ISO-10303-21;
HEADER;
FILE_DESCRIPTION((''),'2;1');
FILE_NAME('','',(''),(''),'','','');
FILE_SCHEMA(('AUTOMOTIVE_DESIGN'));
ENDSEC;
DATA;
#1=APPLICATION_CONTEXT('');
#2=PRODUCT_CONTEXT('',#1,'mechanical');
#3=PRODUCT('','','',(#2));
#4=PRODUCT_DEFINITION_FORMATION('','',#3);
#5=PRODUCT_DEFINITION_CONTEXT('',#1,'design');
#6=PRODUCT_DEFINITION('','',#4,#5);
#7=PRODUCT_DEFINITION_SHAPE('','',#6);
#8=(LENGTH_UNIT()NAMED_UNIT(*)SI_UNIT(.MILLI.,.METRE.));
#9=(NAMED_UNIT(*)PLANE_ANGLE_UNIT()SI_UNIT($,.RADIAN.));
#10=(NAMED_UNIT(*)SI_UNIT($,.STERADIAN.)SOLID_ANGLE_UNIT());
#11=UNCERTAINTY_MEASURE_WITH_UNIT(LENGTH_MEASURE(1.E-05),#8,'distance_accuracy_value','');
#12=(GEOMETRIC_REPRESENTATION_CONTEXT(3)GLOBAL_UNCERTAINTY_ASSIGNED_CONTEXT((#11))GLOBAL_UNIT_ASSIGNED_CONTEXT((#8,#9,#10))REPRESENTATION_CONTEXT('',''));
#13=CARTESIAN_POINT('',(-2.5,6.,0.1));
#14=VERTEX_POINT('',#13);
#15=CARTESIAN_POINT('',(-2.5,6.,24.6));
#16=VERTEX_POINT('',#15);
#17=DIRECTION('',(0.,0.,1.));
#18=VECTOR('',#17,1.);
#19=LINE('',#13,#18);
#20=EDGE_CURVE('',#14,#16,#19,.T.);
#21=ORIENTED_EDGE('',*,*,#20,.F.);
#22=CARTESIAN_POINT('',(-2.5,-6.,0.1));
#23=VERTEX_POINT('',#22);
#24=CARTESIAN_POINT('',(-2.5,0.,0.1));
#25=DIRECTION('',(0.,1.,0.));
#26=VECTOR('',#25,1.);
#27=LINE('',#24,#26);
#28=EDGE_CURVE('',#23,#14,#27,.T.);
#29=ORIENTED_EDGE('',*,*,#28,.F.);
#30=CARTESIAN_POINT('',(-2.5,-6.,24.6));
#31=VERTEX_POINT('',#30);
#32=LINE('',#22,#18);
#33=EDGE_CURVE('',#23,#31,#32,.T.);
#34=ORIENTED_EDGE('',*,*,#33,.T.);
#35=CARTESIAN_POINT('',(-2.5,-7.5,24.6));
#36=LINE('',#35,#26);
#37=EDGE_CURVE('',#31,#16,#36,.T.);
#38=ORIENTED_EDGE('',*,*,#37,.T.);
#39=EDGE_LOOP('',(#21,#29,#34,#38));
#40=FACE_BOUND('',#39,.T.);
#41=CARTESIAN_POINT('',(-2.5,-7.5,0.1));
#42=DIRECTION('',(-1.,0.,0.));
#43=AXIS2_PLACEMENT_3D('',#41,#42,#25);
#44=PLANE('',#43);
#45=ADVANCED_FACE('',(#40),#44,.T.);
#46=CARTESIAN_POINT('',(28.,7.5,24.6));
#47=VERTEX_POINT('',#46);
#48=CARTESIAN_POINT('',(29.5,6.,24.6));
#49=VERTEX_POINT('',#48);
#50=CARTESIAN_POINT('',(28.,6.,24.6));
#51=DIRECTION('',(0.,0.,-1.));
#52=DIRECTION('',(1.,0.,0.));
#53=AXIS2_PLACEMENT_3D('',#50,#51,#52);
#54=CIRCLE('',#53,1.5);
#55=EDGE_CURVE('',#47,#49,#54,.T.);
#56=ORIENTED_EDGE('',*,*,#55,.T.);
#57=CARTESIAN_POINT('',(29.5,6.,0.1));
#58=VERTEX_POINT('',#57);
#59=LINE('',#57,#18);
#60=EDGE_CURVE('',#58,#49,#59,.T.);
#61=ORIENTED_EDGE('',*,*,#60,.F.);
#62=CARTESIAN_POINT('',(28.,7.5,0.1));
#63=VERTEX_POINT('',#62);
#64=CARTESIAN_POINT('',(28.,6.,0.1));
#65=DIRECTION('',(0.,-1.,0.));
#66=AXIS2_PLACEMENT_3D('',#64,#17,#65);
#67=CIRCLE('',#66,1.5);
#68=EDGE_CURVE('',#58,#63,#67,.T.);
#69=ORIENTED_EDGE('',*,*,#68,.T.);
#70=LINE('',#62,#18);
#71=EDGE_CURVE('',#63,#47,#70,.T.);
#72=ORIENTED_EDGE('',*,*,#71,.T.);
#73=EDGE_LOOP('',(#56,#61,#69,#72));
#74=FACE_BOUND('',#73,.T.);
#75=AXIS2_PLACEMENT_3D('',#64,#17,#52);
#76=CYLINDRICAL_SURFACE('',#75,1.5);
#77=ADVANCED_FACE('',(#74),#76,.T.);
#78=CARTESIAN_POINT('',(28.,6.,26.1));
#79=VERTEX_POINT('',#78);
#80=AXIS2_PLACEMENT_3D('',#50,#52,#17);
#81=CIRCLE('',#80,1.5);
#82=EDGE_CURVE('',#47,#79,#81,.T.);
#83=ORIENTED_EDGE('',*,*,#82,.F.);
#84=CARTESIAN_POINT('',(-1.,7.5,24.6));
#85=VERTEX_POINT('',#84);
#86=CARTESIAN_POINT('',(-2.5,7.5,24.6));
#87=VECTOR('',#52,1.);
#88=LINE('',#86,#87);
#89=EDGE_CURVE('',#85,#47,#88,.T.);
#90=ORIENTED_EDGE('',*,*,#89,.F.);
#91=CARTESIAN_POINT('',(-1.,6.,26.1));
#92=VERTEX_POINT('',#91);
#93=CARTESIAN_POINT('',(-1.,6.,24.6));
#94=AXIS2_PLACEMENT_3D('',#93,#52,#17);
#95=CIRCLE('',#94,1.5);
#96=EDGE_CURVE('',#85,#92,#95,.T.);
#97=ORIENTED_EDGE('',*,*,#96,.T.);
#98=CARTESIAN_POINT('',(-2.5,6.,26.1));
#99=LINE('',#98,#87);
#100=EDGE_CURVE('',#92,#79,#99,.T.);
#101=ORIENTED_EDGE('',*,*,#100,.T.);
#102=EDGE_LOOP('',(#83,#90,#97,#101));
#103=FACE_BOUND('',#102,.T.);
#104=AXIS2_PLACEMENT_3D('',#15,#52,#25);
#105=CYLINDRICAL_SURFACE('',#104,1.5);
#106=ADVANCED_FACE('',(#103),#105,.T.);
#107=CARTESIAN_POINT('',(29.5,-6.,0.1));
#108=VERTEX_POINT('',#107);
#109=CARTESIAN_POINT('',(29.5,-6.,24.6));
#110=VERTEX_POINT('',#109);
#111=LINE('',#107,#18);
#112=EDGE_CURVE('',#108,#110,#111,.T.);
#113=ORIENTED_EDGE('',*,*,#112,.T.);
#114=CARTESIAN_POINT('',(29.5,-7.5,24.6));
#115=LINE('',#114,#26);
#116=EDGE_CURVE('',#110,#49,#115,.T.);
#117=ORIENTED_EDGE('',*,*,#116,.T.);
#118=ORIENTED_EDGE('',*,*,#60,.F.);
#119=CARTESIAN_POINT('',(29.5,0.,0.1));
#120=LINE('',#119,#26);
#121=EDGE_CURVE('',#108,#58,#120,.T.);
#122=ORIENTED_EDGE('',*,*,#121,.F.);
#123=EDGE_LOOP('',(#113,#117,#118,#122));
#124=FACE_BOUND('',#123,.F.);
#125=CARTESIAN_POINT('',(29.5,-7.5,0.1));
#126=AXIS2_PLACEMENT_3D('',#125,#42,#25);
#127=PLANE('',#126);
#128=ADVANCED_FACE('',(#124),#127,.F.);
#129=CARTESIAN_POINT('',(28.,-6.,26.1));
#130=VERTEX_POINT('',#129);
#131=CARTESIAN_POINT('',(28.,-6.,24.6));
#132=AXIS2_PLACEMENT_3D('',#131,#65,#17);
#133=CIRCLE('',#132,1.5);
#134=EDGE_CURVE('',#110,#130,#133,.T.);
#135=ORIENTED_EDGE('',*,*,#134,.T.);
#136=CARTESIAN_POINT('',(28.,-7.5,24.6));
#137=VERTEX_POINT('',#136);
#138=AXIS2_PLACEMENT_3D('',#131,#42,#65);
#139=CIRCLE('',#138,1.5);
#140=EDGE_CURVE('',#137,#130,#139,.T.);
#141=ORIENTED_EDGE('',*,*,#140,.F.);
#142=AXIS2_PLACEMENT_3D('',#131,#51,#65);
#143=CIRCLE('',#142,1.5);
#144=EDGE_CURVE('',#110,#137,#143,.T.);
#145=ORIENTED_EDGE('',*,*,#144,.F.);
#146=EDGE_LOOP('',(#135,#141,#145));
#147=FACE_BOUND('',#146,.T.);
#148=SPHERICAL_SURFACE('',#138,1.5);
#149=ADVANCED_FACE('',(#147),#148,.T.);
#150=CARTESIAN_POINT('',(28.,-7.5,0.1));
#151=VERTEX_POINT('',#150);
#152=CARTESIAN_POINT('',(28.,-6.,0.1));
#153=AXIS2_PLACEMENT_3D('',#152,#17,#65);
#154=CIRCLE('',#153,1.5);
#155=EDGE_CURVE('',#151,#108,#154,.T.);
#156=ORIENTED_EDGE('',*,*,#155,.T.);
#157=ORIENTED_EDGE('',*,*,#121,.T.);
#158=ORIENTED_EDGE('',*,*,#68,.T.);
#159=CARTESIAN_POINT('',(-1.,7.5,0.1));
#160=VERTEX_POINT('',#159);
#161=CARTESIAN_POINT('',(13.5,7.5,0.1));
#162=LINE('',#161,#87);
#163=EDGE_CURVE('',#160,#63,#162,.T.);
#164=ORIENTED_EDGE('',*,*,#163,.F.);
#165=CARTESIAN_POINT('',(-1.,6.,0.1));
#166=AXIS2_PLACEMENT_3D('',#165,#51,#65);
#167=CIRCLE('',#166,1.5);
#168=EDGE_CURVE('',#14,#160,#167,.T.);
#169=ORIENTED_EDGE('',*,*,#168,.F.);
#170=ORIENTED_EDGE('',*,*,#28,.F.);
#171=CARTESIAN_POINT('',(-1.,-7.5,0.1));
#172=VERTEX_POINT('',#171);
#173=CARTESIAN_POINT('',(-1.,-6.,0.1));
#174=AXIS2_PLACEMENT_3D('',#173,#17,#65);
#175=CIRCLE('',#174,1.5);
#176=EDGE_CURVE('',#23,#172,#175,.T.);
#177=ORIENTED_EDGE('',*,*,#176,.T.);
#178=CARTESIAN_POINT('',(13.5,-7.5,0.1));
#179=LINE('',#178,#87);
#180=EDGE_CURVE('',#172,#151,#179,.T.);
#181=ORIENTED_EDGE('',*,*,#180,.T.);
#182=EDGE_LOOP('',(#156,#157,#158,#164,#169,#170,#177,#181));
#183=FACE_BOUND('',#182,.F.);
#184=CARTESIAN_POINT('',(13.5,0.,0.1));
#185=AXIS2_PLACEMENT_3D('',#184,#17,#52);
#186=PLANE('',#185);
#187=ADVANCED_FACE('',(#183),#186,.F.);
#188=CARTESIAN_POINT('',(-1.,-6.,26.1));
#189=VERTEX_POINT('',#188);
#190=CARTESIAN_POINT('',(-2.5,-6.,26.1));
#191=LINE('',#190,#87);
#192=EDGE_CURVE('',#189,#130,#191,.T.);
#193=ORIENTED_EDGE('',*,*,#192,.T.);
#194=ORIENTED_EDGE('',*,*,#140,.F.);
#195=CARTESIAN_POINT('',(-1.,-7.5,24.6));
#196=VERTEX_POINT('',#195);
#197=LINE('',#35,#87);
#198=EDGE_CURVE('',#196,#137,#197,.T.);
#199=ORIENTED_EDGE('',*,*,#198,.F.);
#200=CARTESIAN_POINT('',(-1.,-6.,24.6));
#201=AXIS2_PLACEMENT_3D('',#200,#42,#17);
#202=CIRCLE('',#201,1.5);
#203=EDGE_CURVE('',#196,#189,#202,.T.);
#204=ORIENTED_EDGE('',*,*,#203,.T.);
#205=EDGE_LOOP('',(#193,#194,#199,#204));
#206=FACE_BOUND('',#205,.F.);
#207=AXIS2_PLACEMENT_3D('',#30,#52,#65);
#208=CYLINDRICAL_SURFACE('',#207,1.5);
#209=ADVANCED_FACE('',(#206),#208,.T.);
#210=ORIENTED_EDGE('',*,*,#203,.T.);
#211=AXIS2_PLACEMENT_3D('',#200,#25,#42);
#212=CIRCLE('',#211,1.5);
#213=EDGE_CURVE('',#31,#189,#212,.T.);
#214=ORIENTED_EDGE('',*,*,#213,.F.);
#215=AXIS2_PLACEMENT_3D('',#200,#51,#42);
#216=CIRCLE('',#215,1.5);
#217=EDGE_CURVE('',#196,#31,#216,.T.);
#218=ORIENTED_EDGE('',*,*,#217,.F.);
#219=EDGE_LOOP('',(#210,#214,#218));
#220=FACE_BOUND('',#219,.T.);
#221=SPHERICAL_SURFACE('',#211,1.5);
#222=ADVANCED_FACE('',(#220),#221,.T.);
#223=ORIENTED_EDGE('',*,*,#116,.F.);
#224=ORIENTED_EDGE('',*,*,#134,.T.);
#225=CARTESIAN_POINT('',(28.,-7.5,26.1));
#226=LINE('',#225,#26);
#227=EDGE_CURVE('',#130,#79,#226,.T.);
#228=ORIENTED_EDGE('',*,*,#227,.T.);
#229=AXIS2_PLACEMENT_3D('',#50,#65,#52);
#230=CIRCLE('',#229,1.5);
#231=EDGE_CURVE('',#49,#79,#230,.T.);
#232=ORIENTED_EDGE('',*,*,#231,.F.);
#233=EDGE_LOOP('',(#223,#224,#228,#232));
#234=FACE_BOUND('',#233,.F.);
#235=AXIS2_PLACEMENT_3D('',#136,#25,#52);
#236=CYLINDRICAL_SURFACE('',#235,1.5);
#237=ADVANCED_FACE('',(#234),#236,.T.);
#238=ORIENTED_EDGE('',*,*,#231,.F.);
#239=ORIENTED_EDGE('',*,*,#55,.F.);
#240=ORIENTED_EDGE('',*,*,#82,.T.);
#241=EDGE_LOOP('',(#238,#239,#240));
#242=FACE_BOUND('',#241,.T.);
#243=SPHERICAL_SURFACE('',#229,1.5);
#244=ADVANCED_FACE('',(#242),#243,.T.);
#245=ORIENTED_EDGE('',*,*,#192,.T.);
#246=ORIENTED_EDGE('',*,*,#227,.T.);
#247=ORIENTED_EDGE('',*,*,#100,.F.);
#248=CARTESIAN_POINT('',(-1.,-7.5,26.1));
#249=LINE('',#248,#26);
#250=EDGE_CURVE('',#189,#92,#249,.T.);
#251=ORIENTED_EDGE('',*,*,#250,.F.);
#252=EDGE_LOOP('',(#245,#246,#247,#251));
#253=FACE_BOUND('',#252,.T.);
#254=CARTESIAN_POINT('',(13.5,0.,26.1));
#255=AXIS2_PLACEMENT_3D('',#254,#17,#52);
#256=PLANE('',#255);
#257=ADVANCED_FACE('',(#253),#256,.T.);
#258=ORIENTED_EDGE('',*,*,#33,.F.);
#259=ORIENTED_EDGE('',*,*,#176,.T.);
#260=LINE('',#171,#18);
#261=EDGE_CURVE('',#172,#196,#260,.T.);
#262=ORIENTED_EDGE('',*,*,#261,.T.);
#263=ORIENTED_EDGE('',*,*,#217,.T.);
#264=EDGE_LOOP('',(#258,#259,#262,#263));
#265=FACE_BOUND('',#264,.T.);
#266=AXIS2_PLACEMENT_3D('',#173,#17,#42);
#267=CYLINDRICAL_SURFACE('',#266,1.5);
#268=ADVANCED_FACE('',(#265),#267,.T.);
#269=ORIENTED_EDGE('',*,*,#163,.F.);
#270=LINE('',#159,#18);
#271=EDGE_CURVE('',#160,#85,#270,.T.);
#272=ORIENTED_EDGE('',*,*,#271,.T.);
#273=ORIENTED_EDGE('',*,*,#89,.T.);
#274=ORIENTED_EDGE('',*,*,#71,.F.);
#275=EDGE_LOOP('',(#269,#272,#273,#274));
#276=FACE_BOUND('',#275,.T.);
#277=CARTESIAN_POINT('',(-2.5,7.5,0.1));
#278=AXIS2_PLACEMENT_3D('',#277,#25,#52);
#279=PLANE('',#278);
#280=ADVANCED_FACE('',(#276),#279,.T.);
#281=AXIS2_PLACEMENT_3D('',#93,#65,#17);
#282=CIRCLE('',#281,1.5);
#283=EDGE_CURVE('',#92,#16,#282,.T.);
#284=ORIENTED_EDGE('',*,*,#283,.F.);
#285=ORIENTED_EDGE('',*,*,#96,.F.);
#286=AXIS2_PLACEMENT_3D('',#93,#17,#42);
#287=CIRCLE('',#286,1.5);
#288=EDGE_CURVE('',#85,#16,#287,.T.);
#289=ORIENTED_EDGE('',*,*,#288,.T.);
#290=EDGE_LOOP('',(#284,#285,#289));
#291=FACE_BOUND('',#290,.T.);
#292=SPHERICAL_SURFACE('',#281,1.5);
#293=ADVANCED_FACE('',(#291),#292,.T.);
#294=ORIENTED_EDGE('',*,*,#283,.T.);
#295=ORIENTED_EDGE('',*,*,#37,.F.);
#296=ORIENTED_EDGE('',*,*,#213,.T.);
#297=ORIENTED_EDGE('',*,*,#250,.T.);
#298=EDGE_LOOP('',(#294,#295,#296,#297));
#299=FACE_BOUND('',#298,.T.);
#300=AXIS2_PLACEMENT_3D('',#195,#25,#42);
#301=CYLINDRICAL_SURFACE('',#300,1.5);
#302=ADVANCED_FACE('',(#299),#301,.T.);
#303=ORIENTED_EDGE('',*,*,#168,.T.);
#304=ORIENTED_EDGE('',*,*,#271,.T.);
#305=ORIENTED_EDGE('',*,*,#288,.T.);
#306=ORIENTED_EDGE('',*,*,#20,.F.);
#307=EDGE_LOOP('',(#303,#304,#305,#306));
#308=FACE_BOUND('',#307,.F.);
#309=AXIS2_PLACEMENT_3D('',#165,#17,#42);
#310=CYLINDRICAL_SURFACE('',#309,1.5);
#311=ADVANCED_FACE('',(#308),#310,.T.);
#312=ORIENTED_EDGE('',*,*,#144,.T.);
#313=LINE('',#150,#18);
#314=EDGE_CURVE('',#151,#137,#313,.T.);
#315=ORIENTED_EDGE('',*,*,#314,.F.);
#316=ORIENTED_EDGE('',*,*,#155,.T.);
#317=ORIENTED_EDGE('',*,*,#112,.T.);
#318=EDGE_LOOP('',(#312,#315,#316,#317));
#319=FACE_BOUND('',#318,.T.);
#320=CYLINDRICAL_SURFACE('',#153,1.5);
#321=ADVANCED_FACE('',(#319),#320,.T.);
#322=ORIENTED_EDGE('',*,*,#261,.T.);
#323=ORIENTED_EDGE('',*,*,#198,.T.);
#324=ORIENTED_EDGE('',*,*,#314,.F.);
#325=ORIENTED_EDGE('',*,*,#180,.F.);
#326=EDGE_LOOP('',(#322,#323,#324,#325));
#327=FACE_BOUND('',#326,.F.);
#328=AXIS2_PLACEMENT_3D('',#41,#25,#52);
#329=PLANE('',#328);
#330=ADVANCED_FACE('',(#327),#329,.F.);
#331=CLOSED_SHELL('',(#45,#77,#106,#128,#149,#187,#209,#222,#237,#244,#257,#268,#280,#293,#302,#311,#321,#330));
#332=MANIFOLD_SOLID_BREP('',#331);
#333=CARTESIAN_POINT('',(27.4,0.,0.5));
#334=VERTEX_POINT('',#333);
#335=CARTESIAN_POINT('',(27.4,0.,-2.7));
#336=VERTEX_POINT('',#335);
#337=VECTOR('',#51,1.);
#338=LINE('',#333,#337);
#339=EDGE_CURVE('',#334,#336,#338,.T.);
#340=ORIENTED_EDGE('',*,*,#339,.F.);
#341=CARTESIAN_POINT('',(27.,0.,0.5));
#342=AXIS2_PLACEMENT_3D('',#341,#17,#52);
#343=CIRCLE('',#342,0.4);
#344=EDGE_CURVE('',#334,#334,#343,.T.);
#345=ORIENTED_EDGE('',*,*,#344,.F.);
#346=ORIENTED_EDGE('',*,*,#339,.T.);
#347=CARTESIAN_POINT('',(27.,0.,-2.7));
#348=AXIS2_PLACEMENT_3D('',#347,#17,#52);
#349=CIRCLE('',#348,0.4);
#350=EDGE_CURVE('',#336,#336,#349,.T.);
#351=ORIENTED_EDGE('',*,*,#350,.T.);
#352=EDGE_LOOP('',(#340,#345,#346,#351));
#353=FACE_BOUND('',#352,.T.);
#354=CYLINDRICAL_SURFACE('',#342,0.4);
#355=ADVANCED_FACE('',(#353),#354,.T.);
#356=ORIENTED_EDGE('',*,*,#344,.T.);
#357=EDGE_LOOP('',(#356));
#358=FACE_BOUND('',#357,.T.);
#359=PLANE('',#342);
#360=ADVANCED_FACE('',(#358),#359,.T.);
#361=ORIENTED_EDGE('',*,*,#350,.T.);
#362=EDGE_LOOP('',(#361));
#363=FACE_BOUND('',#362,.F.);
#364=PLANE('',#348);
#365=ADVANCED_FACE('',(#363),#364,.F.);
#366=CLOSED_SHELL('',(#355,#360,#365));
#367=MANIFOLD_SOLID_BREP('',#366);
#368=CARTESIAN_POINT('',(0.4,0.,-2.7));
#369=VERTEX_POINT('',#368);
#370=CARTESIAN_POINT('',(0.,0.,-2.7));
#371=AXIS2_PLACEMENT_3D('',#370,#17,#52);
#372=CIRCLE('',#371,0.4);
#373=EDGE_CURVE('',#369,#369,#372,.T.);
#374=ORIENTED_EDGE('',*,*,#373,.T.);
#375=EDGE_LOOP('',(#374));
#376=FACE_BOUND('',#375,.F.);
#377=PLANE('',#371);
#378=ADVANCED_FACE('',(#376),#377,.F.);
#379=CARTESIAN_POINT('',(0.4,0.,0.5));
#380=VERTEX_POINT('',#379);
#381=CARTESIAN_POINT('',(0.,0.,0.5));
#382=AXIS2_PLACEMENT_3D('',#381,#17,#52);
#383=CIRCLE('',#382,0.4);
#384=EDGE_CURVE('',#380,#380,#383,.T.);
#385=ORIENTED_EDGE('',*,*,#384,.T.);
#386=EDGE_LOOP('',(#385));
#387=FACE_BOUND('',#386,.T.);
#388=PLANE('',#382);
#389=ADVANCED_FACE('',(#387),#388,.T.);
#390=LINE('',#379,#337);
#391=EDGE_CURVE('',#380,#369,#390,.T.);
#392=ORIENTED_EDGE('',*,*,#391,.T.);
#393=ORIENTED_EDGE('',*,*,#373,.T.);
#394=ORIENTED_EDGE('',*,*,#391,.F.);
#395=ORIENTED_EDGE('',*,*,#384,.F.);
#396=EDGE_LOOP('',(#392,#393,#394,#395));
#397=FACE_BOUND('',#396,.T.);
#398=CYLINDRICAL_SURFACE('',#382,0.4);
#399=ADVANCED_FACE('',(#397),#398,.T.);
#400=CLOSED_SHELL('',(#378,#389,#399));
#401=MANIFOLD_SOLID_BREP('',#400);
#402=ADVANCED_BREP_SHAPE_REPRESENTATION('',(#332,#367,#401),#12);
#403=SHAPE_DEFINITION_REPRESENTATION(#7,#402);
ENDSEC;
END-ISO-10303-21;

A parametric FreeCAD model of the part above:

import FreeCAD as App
import Part
import Sketcher
from FreeCAD import Vector
Q = App.Units.Quantity


def edges_at(feature, points):
    """Names of the edges that pass closest to the given points."""
    edges = feature.Shape.Edges
    near = lambda p: min(range(len(edges)), key=lambda i: edges[i].distToShape(Part.Vertex(*p))[0])
    return sorted({f"Edge{near(p) + 1}" for p in points})

doc = App.newDocument("Part")
params = doc.addObject("Spreadsheet::Sheet", "Params")
for row, (alias, value) in enumerate([
    ("sketch1_width", "32 mm"),
    ("sketch1_height", "15 mm"),
    ("pad1_length", "26 mm"),
    ("fillet_radius", "1.5 mm"),
    ("sketch2_diameter", "0.8 mm"),
    ("pad2_length", "3.2 mm"),
], start=1):
    params.set(f"A{row}", alias)
    params.set(f"B{row}", "=" + value)
    params.setAlias(f"B{row}", alias)

body = doc.addObject("PartDesign::Body", "Body")

# Sketch on XY plane
sketch1 = doc.addObject("Sketcher::SketchObject", "Sketch")
body.addObject(sketch1)
sketch1.AttachmentSupport = (doc.XY_Plane, [""])
sketch1.MapMode = "FlatFace"
sketch1.AttachmentOffset = App.Placement(Vector(0, 0, 0.1), App.Rotation())
sketch1.addGeometry([
    Part.LineSegment(Vector(-2, 8, 0), Vector(-2, -8, 0)),
    Part.LineSegment(Vector(-2, -8, 0), Vector(30, -8, 0)),
    Part.LineSegment(Vector(30, -8, 0), Vector(30, 8, 0)),
    Part.LineSegment(Vector(30, 8, 0), Vector(-2, 8, 0)),
], False)
sketch1.addConstraint([
    Sketcher.Constraint("Coincident", 0, 2, 1, 1),
    Sketcher.Constraint("Coincident", 1, 2, 2, 1),
    Sketcher.Constraint("Coincident", 2, 2, 3, 1),
    Sketcher.Constraint("Coincident", 3, 2, 0, 1),
    Sketcher.Constraint("Vertical", 0),
    Sketcher.Constraint("Horizontal", 1),
    Sketcher.Constraint("Vertical", 2),
    Sketcher.Constraint("Horizontal", 3),
    Sketcher.Constraint("DistanceX", 1, 1, 1, 2, Q("32 mm")),
    Sketcher.Constraint("DistanceY", 0, 2, 0, 1, Q("15 mm")),
    Sketcher.Constraint("DistanceX", 0, 2, -1, 1, Q("2.5 mm")),
    Sketcher.Constraint("DistanceY", 0, 2, -1, 1, Q("7.5 mm")),
])
sketch1.setExpression("Constraints[8]", "Params.sketch1_width")
sketch1.setExpression("Constraints[9]", "Params.sketch1_height")
pad1 = doc.addObject("PartDesign::Pad", "Pad")
body.addObject(pad1)
pad1.Profile = sketch1
pad1.setExpression("Length", "Params.pad1_length")
doc.recompute()

fillet = doc.addObject("PartDesign::Fillet", "Fillet")
body.addObject(fillet)
fillet.Base = (pad1, edges_at(pad1, [
    (-2.5, 0, 26.1),
    (-2.5, -7.5, 13.1),
    (13.5, -7.5, 26.1),
    (29.5, -7.5, 13.1),
    (29.5, 0, 26.1),
    (29.5, 7.5, 13.1),
    (13.5, 7.5, 26.1),
    (-2.5, 7.5, 13.1),
]))
fillet.setExpression("Radius", "Params.fillet_radius")
body2 = doc.addObject("PartDesign::Body", "Body001")
body2.AllowCompound = True

# Sketch on XY plane
sketch2 = doc.addObject("Sketcher::SketchObject", "Sketch001")
body2.addObject(sketch2)
sketch2.AttachmentSupport = (doc.getObject("XY_Plane001"), [""])
sketch2.MapMode = "FlatFace"
sketch2.AttachmentOffset = App.Placement(Vector(0, 0, 0.5), App.Rotation())
sketch2.addGeometry([
    Part.Circle(Vector(0, 0, 0), Vector(0, 0, 1), 0.4),
    Part.Circle(Vector(27, 0, 0), Vector(0, 0, 1), 0.4),
], False)
sketch2.addConstraint([
    Sketcher.Constraint("Coincident", 0, 3, -1, 1),
    Sketcher.Constraint("Equal", 0, 1),
    Sketcher.Constraint("PointOnObject", 1, 3, -1),
    Sketcher.Constraint("Diameter", 0, Q("0.8 mm")),
    Sketcher.Constraint("DistanceX", -1, 1, 1, 3, Q("27 mm")),
])
sketch2.setExpression("Constraints[3]", "Params.sketch2_diameter")
pad2 = doc.addObject("PartDesign::Pad", "Pad001")
body2.addObject(pad2)
pad2.Profile = sketch2
pad2.setExpression("Length", "Params.pad2_length")
pad2.Reversed = True

doc.recompute()
